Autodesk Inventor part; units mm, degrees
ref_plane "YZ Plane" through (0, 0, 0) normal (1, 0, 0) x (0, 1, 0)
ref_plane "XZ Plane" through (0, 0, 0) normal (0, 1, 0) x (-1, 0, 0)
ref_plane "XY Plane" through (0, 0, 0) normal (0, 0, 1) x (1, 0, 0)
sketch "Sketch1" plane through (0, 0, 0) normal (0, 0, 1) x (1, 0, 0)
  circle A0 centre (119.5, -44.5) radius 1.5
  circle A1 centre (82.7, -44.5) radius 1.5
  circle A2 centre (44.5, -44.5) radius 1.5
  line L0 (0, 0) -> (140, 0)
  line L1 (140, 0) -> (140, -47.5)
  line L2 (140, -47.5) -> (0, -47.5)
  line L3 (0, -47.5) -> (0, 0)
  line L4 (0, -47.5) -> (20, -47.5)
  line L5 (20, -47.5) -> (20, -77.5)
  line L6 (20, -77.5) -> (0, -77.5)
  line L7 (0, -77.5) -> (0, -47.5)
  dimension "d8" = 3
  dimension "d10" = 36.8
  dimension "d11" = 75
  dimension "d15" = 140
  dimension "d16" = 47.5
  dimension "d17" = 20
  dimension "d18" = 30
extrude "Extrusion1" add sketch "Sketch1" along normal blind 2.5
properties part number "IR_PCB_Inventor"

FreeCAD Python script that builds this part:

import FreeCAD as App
import Part
import Sketcher
from FreeCAD import Vector
Q = App.Units.Quantity


def add_polygon(sketch, points):
    """Adds a closed chain of lines whose ends are joined by coincident constraints."""
    first, n = sketch.GeometryCount, len(points)
    for a, b in zip(points, points[1:] + points[:1]):
        sketch.addGeometry(Part.LineSegment(App.Vector(*a, 0), App.Vector(*b, 0)), False)
    for i in range(n):
        sketch.addConstraint(Sketcher.Constraint("Coincident", first + i, 2, first + (i + 1) % n, 1))

doc = App.newDocument("Part")
body = doc.addObject("PartDesign::Body", "Body")

# Sketch on XY plane
sketch1 = body.newObject("Sketcher::SketchObject", "Sketch")
sketch1.AttachmentSupport = (doc.getObject("XY_Plane"), [""])
sketch1.MapMode = "FlatFace"
add_polygon(sketch1, [(140, 0), (0, 0), (0, -77.5), (20, -77.5), (20, -47.5), (140, -47.5)])  # lines 0-5
sketch1.addGeometry(Part.Circle(Vector(44.5, -44.5, 0), Vector(0, 0, 1), 1.5), False)  # 6
sketch1.addGeometry(Part.Circle(Vector(82.7, -44.5, 0), Vector(0, 0, 1), 1.5), False)  # 7
sketch1.addGeometry(Part.Circle(Vector(119.5, -44.5, 0), Vector(0, 0, 1), 1.5), False)  # 8
sketch1.addConstraint([
    Sketcher.Constraint("Horizontal", 0),
    Sketcher.Constraint("Vertical", 1),
    Sketcher.Constraint("Horizontal", 2),
    Sketcher.Constraint("Vertical", 3),
    Sketcher.Constraint("Horizontal", 4),
    Sketcher.Constraint("Vertical", 5),
    Sketcher.Constraint("Coincident", 0, 2, -1, 1),
    Sketcher.Constraint("Equal", 6, 7),
    Sketcher.Constraint("Equal", 7, 8),
    Sketcher.Constraint("Horizontal", 6, 3, 7, 3),
    Sketcher.Constraint("Horizontal", 7, 3, 8, 3),
    Sketcher.Constraint("Diameter", 6, Q("3 mm")),
    Sketcher.Constraint("DistanceX", 0, 2, 0, 1, Q("140 mm")),
    Sketcher.Constraint("DistanceX", 2, 1, 2, 2, Q("20 mm")),
    Sketcher.Constraint("DistanceY", 3, 1, 3, 2, Q("30 mm")),
    Sketcher.Constraint("DistanceY", 5, 1, 5, 2, Q("47.5 mm")),
    Sketcher.Constraint("DistanceX", 6, 3, 8, 3, Q("75 mm")),
    Sketcher.Constraint("DistanceY", 3, 2, 6, 3, Q("3 mm")),
    Sketcher.Constraint("DistanceX", 7, 3, 8, 3, Q("36.8 mm")),
    Sketcher.Constraint("DistanceX", -1, 1, 6, 3, Q("44.5 mm")),
])
pad1 = body.newObject("PartDesign::Pad", "Pad")
pad1.Profile = sketch1
pad1.Length = 2.5

doc.recompute()
